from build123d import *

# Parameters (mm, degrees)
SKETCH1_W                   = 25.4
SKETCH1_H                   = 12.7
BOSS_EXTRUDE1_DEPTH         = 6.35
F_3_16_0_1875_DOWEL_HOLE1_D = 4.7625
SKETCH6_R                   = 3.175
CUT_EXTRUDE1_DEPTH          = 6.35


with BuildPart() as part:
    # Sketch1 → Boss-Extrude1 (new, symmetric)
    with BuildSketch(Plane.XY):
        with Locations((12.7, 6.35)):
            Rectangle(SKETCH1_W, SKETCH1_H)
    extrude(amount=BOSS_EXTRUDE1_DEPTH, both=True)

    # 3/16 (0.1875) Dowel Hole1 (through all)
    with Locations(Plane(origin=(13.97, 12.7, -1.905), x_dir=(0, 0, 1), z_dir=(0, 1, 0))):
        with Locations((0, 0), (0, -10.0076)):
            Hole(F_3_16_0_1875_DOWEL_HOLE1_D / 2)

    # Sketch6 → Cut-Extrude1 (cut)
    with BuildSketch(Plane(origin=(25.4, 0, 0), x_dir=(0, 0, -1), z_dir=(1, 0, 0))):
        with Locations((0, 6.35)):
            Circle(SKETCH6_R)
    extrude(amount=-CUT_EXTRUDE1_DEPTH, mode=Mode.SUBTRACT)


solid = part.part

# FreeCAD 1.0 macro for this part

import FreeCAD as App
import Part
import Sketcher

V = App.Vector
Q = App.Units.Quantity


def add_polygon(sketch, points):
    """Adds a closed chain of lines whose ends are joined by coincident constraints."""
    first, n = sketch.GeometryCount, len(points)
    for a, b in zip(points, points[1:] + points[:1]):
        sketch.addGeometry(Part.LineSegment(App.Vector(*a, 0), App.Vector(*b, 0)), False)
    for i in range(n):
        sketch.addConstraint(Sketcher.Constraint("Coincident", first + i, 2, first + (i + 1) % n, 1))

doc = App.newDocument("Part")
body = doc.addObject("PartDesign::Body", "Body")

# Sketch on XY plane
sketch1 = doc.addObject("Sketcher::SketchObject", "Sketch")
body.addObject(sketch1)
sketch1.AttachmentSupport = (doc.XY_Plane, [""])
sketch1.MapMode = "FlatFace"
add_polygon(sketch1, [(0, 12.7), (0, 0), (25.4, 0), (25.4, 12.7)])  # lines 0-3
sketch1.addConstraint([
    Sketcher.Constraint("Vertical", 0),
    Sketcher.Constraint("Horizontal", 1),
    Sketcher.Constraint("Vertical", 2),
    Sketcher.Constraint("Horizontal", 3),
    Sketcher.Constraint("Coincident", 0, 2, -1, 1),
    Sketcher.Constraint("DistanceX", 1, 1, 1, 2, Q("1 in")),
    Sketcher.Constraint("DistanceY", 0, 2, 0, 1, Q("0.5 in")),
])
pad1 = doc.addObject("PartDesign::Pad", "Pad")
body.addObject(pad1)
pad1.Profile = sketch1
pad1.Length = Q("0.5 in")
pad1.Midplane = True

# Sketch on XZ plane
sketch2 = doc.addObject("Sketcher::SketchObject", "Sketch001")
body.addObject(sketch2)
sketch2.AttachmentSupport = (doc.XZ_Plane, [""])
sketch2.MapMode = "FlatFace"
sketch2.AttachmentOffset = App.Placement(V(0, 0, -0.5 * 25.4), App.Rotation())
sketch2.addGeometry([
    Part.Circle(V(13.97, -1.905, 0), V(0, 0, 1), 2.38125),
    Part.Circle(V(3.9624, -1.905, 0), V(0, 0, 1), 2.38125),
], False)
sketch2.addConstraint([
    Sketcher.Constraint("Equal", 0, 1),
    Sketcher.Constraint("Horizontal", 0, 3, 1, 3),
    Sketcher.Constraint("Diameter", 0, Q("0.1875 in")),
    Sketcher.Constraint("DistanceX", -1, 1, 0, 3, Q("0.55 in")),
    Sketcher.Constraint("DistanceY", 0, 3, -1, 1, Q("0.075 in")),
    Sketcher.Constraint("DistanceX", -1, 1, 1, 3, Q("0.156 in")),
])
doc.recompute()
hole = doc.addObject("PartDesign::Hole", "Hole")
body.addObject(hole)
hole.Profile = sketch2
hole.ThreadType = "None"
hole.Diameter = Q("0.1875 in")
hole.DepthType = "ThroughAll"
hole.Reversed = True

# Sketch on YZ plane
sketch3 = doc.addObject("Sketcher::SketchObject", "Sketch002")
body.addObject(sketch3)
sketch3.AttachmentSupport = (doc.YZ_Plane, [""])
sketch3.MapMode = "FlatFace"
sketch3.AttachmentOffset = App.Placement(V(0, 0, 1 * 25.4), App.Rotation())
sketch3.addGeometry(Part.Circle(V(6.35, 0, 0), V(0, 0, 1), 3.175), False)
sketch3.addConstraint([
    Sketcher.Constraint("PointOnObject", 0, 3, -1),
    Sketcher.Constraint("Diameter", 0, Q("0.25 in")),
    Sketcher.Constraint("DistanceX", -1, 1, 0, 3, Q("0.25 in")),
])
pocket1 = doc.addObject("PartDesign::Pocket", "Pocket")
body.addObject(pocket1)
pocket1.Profile = sketch3
pocket1.Length = Q("0.25 in")

doc.recompute()
